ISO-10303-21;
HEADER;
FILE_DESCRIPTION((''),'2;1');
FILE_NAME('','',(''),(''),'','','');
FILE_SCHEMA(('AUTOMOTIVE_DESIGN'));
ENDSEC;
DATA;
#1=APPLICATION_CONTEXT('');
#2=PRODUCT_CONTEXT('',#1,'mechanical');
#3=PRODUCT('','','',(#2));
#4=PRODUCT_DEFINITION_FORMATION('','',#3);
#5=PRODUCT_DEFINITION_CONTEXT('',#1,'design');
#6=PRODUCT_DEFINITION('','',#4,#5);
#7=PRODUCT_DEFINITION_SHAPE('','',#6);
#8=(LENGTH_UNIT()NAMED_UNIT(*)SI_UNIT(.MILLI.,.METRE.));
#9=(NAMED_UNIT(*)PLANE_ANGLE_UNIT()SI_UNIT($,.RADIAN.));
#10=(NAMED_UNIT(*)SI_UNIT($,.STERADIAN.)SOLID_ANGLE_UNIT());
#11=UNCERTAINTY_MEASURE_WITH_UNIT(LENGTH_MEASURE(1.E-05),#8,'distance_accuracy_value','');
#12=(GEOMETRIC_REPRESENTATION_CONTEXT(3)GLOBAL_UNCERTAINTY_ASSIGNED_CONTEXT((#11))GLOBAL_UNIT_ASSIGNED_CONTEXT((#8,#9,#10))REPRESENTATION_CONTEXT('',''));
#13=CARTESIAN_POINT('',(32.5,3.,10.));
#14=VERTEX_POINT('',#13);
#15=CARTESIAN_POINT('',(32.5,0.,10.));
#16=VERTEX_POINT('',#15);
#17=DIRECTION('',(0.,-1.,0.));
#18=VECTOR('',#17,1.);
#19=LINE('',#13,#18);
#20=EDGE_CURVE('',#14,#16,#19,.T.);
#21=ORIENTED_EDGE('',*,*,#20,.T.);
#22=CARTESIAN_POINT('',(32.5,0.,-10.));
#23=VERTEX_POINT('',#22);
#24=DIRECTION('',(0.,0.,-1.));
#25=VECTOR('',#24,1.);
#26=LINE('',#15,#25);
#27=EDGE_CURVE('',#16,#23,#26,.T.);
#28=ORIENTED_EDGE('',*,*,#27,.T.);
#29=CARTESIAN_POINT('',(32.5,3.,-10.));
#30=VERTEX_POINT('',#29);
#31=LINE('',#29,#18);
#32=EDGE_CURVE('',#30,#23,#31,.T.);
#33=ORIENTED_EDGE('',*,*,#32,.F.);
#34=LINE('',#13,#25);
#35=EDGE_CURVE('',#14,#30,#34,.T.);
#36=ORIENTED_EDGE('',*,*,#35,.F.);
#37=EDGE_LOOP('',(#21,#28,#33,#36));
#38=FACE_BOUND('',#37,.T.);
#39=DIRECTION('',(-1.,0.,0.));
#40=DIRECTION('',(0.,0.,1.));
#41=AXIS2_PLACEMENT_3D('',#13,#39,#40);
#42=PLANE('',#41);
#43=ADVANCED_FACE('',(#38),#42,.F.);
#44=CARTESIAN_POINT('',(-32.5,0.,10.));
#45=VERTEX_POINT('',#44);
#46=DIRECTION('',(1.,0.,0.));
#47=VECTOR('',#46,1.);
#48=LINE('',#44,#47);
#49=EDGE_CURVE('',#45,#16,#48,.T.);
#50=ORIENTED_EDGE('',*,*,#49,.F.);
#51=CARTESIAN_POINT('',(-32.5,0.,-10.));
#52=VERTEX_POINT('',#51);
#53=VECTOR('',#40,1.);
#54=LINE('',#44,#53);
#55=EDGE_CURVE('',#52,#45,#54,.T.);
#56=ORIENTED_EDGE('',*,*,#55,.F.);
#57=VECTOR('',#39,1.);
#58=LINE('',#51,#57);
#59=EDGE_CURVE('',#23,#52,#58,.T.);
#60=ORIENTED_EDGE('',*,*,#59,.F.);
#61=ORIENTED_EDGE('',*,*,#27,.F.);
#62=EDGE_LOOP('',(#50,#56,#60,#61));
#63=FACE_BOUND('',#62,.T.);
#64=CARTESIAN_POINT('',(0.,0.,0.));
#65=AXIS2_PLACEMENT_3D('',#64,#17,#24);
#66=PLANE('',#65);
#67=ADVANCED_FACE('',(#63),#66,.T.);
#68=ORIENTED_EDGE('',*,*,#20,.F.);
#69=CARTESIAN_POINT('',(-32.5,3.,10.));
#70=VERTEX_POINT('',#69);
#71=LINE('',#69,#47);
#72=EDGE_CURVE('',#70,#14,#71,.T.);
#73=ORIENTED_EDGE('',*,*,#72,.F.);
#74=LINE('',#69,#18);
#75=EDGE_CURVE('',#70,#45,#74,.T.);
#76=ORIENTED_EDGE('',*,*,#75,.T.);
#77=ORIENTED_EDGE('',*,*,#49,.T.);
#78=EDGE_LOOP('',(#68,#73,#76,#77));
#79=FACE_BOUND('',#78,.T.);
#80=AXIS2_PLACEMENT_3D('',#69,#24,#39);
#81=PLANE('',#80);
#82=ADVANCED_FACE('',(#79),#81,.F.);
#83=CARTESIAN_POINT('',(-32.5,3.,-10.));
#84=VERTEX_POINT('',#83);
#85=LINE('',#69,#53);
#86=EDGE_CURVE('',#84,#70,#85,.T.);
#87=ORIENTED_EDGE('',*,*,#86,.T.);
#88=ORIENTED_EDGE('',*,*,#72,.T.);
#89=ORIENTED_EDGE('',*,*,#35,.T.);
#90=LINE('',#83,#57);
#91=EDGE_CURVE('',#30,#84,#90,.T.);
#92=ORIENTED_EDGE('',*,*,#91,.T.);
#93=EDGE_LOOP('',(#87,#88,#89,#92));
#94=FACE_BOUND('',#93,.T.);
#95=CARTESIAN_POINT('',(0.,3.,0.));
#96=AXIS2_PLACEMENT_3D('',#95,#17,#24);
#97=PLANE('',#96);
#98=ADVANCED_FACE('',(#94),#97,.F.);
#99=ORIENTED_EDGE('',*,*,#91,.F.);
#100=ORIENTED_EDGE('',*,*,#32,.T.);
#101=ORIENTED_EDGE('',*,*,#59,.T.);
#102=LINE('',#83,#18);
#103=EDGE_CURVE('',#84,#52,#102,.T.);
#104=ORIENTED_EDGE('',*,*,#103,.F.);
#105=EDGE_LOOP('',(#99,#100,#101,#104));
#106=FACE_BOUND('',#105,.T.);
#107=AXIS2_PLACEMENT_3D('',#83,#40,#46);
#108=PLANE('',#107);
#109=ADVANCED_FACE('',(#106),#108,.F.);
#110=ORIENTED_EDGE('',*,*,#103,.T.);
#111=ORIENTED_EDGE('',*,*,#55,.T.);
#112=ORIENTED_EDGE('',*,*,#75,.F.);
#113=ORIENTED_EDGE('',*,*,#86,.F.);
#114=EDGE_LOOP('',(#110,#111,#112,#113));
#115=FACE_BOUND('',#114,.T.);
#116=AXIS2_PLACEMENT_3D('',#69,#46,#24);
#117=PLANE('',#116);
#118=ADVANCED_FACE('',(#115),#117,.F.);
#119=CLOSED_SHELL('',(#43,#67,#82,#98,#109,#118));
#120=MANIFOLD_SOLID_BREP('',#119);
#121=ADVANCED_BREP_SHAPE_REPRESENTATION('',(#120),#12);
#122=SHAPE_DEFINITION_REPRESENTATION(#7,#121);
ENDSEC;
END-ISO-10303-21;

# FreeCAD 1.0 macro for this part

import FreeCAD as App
import Part
import Sketcher

V = App.Vector


def add_polygon(sketch, points):
    """Adds a closed chain of lines whose ends are joined by coincident constraints."""
    first, n = sketch.GeometryCount, len(points)
    for a, b in zip(points, points[1:] + points[:1]):
        sketch.addGeometry(Part.LineSegment(App.Vector(*a, 0), App.Vector(*b, 0)), False)
    for i in range(n):
        sketch.addConstraint(Sketcher.Constraint("Coincident", first + i, 2, first + (i + 1) % n, 1))

doc = App.newDocument("Part")
body = doc.addObject("PartDesign::Body", "Body")

# Sketch on XZ plane
sketch1 = body.newObject("Sketcher::SketchObject", "Sketch")
sketch1.AttachmentSupport = (doc.getObject("XZ_Plane"), [""])
sketch1.MapMode = "FlatFace"
add_polygon(sketch1, [(-32, -10), (-32, 10), (32, 10), (32, -10)])  # lines 0-3
sketch1.addConstraint([
    Sketcher.Constraint("Vertical", 0),
    Sketcher.Constraint("Horizontal", 1),
    Sketcher.Constraint("Vertical", 2),
    Sketcher.Constraint("Horizontal", 3),
    Sketcher.Constraint("Symmetric", 0, 2, 2, 2, -1, 1),
    Sketcher.Constraint("DistanceX", 1, 1, 1, 2, 65.0),
    Sketcher.Constraint("DistanceY", 0, 1, 0, 2, 20.0),
])
pad1 = body.newObject("PartDesign::Pad", "Pad")
pad1.Profile = sketch1
pad1.Length = 3
pad1.Reversed = True

doc.recompute()
